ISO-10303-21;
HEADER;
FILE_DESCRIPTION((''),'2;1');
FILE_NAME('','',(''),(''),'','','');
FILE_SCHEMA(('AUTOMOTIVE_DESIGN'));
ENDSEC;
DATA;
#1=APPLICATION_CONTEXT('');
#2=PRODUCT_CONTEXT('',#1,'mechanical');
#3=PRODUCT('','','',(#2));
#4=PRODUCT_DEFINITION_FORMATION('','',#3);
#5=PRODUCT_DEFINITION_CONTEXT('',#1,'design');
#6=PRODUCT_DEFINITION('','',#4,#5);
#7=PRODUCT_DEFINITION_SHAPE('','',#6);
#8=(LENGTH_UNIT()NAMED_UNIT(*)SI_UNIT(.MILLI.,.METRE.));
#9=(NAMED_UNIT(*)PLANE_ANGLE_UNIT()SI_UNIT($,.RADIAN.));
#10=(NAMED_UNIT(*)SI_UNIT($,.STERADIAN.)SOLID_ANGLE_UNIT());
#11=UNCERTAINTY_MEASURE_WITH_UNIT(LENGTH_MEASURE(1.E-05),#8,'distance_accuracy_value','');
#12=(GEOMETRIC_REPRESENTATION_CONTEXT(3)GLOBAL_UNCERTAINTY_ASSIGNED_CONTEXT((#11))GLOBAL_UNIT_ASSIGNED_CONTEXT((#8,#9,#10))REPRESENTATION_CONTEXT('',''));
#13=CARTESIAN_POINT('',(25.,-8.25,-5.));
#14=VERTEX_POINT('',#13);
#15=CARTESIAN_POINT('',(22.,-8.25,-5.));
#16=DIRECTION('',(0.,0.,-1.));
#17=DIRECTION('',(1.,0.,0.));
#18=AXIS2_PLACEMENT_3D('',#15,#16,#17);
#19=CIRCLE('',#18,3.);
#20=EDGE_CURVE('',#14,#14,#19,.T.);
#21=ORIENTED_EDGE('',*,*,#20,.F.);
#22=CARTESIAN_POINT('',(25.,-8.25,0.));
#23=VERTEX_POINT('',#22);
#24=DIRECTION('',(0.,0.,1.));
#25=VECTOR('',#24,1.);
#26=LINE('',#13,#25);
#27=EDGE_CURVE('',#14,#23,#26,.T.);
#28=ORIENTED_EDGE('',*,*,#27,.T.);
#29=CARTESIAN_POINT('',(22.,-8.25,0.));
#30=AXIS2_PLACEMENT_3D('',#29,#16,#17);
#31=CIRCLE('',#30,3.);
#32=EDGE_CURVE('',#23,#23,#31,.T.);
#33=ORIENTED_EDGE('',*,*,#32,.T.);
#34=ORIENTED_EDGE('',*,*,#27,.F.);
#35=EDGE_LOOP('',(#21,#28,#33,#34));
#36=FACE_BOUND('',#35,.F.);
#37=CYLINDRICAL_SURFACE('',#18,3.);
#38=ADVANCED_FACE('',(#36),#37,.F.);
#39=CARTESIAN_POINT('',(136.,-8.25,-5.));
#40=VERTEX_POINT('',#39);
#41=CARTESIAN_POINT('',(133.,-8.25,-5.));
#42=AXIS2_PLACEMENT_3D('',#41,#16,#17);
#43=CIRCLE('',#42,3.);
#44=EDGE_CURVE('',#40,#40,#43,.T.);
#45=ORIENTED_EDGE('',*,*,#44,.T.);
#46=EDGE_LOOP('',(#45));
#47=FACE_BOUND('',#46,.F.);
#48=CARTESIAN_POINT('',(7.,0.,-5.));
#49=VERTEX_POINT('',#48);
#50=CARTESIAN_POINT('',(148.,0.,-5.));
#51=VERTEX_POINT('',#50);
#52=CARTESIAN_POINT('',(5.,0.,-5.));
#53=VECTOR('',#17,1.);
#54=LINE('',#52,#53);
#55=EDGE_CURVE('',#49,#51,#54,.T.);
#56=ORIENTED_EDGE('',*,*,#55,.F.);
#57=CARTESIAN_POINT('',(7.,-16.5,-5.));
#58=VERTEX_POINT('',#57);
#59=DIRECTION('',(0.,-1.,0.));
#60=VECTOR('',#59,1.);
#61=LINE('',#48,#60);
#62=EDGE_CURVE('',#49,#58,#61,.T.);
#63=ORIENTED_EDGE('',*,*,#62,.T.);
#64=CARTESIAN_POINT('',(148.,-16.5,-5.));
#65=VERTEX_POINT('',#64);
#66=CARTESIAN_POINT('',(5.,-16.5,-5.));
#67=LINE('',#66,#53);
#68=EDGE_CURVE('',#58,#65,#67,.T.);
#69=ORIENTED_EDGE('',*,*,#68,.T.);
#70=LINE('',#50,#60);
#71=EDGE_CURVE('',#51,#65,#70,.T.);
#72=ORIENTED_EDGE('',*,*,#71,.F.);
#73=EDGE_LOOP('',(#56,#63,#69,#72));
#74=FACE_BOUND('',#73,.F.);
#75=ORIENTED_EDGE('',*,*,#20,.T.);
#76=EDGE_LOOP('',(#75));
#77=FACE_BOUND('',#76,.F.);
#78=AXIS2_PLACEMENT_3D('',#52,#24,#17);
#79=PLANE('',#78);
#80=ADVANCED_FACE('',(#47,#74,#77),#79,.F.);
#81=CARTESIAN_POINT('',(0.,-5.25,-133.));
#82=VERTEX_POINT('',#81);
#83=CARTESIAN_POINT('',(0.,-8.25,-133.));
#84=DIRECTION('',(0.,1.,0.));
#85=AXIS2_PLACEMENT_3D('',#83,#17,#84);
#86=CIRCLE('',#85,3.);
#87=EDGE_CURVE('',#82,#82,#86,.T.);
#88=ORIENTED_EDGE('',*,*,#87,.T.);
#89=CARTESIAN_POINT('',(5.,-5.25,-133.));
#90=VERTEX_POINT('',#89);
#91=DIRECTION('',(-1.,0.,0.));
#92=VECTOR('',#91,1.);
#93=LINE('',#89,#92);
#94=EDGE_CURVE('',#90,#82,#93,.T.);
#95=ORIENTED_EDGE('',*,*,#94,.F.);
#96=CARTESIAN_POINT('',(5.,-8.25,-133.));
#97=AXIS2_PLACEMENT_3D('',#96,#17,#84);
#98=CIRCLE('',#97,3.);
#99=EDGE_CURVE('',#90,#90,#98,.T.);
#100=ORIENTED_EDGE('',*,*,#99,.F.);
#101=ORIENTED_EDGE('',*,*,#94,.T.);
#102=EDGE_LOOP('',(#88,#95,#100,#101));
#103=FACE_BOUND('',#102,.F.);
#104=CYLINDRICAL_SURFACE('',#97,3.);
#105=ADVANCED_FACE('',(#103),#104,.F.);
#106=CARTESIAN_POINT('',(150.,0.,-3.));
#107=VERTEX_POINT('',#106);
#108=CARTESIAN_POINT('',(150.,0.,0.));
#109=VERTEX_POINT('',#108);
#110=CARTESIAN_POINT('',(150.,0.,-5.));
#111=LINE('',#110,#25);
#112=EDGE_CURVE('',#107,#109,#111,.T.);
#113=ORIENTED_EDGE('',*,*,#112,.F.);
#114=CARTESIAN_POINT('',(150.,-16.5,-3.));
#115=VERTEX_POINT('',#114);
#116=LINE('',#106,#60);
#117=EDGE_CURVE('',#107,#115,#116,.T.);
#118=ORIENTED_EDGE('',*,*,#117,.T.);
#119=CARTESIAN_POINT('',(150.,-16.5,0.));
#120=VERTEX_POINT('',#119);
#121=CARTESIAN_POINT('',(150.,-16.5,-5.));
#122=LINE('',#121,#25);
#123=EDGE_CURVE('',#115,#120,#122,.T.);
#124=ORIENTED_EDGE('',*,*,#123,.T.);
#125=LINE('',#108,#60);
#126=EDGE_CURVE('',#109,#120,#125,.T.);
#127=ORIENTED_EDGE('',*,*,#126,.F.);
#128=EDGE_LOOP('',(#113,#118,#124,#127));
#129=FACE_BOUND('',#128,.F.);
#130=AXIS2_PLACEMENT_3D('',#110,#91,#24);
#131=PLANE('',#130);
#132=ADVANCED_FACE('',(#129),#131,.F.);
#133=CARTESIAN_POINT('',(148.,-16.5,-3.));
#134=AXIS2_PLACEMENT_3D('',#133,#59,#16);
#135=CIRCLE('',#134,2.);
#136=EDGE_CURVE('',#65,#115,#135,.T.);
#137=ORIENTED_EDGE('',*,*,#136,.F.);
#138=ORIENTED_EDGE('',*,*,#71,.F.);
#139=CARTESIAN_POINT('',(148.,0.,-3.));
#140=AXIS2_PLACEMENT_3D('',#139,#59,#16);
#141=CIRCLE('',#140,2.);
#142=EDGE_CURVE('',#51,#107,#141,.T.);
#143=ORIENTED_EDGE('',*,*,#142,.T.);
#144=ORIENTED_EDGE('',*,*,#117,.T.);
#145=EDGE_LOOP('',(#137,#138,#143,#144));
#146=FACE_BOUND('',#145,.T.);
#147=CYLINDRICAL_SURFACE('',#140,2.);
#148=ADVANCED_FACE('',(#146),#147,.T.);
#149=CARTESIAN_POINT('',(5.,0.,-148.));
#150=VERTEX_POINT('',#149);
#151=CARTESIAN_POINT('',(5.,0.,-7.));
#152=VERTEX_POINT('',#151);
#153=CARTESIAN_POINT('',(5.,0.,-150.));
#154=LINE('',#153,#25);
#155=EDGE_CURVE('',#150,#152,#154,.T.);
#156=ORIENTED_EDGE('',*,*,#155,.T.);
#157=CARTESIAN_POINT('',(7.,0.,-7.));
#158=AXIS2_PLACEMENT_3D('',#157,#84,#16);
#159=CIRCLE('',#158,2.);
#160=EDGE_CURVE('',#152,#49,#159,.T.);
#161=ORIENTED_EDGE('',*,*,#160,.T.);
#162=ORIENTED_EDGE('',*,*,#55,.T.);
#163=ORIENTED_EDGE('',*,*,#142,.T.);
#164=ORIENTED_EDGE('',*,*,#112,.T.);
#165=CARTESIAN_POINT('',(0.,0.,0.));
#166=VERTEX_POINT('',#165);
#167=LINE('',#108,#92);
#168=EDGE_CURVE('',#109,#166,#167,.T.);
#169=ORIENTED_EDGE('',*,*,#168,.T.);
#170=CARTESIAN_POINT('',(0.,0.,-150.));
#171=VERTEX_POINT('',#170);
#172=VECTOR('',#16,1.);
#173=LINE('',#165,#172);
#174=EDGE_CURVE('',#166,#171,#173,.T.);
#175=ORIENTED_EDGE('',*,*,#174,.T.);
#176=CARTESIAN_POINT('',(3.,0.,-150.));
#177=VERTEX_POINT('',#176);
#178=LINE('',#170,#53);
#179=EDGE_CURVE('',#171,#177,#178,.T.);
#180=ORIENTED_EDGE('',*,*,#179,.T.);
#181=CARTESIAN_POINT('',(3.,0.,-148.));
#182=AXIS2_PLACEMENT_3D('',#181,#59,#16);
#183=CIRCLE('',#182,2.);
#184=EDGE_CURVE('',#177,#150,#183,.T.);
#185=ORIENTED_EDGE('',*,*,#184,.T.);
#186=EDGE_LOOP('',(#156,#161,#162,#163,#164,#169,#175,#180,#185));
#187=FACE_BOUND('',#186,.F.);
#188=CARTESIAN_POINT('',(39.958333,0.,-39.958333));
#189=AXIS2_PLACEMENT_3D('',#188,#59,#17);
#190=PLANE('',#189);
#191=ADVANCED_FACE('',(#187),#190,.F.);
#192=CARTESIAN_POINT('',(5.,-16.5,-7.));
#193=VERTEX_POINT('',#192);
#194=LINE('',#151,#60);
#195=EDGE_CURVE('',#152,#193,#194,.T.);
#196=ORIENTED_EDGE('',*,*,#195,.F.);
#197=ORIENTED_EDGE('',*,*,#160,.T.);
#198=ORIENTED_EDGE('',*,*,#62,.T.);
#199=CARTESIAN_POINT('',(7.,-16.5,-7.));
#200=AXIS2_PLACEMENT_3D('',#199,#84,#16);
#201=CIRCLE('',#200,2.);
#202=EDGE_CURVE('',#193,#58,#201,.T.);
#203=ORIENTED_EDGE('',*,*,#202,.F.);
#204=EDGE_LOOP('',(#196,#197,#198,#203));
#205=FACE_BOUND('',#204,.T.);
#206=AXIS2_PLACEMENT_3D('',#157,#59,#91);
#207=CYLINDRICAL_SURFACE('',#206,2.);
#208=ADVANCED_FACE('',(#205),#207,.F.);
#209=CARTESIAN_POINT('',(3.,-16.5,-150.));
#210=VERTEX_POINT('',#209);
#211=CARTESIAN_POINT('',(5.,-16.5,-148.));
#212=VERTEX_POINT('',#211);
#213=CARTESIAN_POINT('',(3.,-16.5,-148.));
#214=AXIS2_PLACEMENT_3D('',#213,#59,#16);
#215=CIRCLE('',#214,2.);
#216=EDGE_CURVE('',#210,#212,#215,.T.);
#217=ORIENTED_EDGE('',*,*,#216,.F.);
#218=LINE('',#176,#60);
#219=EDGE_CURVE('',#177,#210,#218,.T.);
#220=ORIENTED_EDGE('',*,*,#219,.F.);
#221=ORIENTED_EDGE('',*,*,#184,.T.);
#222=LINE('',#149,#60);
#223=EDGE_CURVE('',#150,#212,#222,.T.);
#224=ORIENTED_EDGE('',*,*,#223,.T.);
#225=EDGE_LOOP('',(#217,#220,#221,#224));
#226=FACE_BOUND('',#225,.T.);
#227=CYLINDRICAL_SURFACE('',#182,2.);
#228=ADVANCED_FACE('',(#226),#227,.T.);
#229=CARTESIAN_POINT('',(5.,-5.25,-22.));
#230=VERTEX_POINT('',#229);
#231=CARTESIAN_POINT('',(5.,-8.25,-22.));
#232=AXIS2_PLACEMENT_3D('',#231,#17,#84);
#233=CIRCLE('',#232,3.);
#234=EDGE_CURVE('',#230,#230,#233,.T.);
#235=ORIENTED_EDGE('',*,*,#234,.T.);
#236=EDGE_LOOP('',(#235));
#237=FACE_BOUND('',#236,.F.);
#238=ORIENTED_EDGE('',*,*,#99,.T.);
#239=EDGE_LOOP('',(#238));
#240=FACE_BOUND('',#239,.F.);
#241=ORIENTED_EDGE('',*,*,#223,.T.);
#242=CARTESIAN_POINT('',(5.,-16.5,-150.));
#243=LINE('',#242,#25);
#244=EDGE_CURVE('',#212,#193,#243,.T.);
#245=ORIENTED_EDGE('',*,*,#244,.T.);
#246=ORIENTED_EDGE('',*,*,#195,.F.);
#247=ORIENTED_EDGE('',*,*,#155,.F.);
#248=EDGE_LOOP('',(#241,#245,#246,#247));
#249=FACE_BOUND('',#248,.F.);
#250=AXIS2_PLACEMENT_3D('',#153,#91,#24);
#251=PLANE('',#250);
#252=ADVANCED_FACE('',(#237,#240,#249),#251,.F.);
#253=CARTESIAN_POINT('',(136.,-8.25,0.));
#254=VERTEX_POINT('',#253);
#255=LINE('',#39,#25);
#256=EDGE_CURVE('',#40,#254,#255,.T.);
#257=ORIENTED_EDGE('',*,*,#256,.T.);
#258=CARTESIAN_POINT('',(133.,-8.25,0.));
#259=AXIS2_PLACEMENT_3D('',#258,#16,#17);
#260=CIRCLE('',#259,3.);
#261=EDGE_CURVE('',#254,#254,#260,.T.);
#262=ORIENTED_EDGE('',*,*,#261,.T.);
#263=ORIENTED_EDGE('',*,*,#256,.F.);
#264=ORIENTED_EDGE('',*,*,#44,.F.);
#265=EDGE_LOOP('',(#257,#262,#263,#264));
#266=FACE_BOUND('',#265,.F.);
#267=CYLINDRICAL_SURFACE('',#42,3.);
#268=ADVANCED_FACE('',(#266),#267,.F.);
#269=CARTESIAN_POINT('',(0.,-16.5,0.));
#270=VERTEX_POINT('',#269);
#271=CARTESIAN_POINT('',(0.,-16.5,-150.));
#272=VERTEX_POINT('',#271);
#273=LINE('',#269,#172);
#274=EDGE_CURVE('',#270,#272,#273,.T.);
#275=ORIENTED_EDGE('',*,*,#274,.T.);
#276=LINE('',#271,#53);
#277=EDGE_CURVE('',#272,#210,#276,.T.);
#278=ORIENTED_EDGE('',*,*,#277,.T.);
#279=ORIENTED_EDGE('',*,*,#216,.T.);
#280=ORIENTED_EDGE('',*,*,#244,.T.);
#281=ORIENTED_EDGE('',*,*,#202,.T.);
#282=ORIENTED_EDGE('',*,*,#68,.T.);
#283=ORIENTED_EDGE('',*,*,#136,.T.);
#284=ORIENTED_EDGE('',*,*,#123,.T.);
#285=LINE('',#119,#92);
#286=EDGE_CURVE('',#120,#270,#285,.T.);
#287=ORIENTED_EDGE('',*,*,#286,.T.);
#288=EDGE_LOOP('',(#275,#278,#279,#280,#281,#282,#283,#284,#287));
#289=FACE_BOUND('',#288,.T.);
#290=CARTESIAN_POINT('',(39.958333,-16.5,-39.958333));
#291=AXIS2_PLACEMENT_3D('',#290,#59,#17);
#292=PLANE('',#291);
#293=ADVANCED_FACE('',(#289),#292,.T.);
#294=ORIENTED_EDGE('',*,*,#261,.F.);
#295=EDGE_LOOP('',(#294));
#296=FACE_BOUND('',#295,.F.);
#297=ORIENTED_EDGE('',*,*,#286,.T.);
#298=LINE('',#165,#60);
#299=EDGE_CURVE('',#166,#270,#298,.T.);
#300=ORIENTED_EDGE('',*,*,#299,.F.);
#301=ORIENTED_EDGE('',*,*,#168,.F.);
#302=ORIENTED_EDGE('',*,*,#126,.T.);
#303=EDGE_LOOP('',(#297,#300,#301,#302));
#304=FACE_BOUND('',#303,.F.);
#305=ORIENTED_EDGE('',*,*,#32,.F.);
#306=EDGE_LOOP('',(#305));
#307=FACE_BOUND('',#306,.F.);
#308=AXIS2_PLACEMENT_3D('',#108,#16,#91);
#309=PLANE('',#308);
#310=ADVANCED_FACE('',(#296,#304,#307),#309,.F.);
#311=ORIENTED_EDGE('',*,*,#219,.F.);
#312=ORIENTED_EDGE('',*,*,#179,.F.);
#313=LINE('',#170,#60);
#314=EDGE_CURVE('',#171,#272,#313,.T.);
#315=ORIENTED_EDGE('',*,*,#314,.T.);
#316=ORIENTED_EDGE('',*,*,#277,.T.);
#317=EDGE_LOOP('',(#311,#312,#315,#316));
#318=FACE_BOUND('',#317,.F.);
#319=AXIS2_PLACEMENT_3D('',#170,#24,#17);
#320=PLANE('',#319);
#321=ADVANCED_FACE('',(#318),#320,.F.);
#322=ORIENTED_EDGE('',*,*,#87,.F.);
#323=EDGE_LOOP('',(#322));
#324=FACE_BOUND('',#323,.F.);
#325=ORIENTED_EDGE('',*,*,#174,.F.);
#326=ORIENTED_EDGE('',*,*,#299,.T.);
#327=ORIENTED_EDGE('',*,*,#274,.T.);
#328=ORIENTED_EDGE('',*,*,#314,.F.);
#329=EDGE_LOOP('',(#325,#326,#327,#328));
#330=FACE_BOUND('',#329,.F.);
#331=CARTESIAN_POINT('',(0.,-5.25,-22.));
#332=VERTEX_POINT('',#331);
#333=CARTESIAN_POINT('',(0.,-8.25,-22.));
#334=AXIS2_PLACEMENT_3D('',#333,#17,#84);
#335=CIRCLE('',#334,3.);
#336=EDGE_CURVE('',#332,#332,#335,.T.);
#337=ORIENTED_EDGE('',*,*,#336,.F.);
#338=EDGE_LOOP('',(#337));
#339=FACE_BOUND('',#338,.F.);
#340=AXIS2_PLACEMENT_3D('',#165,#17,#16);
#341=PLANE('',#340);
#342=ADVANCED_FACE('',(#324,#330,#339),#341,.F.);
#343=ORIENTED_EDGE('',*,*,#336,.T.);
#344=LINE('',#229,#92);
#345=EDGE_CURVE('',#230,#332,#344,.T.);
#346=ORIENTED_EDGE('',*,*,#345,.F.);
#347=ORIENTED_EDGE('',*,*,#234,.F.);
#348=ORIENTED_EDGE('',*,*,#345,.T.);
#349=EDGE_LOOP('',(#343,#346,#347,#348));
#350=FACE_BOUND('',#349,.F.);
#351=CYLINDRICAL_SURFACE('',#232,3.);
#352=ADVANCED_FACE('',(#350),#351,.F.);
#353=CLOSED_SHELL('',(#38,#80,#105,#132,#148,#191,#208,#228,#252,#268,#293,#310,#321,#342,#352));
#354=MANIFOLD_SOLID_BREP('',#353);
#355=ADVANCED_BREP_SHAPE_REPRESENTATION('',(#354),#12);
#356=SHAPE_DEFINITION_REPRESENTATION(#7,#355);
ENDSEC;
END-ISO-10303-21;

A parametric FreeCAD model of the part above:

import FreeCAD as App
import Part
import Sketcher


def edges_at(feature, points):
    """Names of the edges that pass closest to the given points."""
    edges = feature.Shape.Edges
    near = lambda p: min(range(len(edges)), key=lambda i: edges[i].distToShape(Part.Vertex(*p))[0])
    return sorted({f"Edge{near(p) + 1}" for p in points})


def add_polygon(sketch, points):
    """Adds a closed chain of lines whose ends are joined by coincident constraints."""
    first, n = sketch.GeometryCount, len(points)
    for a, b in zip(points, points[1:] + points[:1]):
        sketch.addGeometry(Part.LineSegment(App.Vector(*a, 0), App.Vector(*b, 0)), False)
    for i in range(n):
        sketch.addConstraint(Sketcher.Constraint("Coincident", first + i, 2, first + (i + 1) % n, 1))

doc = App.newDocument("Part")
body = doc.addObject("PartDesign::Body", "Body")

# Sketch on XZ plane
sketch1 = body.newObject("Sketcher::SketchObject", "Sketch")
sketch1.AttachmentSupport = (doc.getObject("XZ_Plane"), [""])
sketch1.MapMode = "FlatFace"
add_polygon(sketch1, [(0, 0), (0, -150), (5, -150), (5, -5), (150, -5), (150, 0)])  # lines 0-5
sketch1.addConstraint([
    Sketcher.Constraint("Vertical", 0),
    Sketcher.Constraint("Horizontal", 1),
    Sketcher.Constraint("Vertical", 2),
    Sketcher.Constraint("Horizontal", 3),
    Sketcher.Constraint("Vertical", 4),
    Sketcher.Constraint("Horizontal", 5),
    Sketcher.Constraint("Coincident", 5, 2, -1, 1),
    Sketcher.Constraint("Equal", 5, 0),
    Sketcher.Constraint("Equal", 3, 2),
    Sketcher.Constraint("DistanceX", 1, 1, 1, 2, 5.0),
    Sketcher.Constraint("DistanceX", 3, 1, 3, 2, 145.0),
])
pad1 = body.newObject("PartDesign::Pad", "Pad")
pad1.Profile = sketch1
pad1.Length = 16.5
doc.recompute()

fillet = body.newObject("PartDesign::Fillet", "Fillet")
fillet.Base = (pad1, edges_at(pad1, [(5, -8.25, -5), (150, -8.25, -5), (5, -8.25, -150)]))
fillet.Radius = 2

# Sketch on XY plane
sketch2 = body.newObject("Sketcher::SketchObject", "Sketch001")
sketch2.AttachmentSupport = (doc.getObject("XY_Plane"), [""])
sketch2.MapMode = "FlatFace"
sketch2.AttachmentOffset = App.Placement(App.Vector(0, 0, -5), App.Rotation())
sketch2.addGeometry([
    Part.Circle(App.Vector(133, -8.25, 0), App.Vector(0, 0, 1), 3),
    Part.Circle(App.Vector(22, -8.25, 0), App.Vector(0, 0, 1), 3),
], False)
sketch2.addConstraint([
    Sketcher.Constraint("Equal", 0, 1),
    Sketcher.Constraint("Horizontal", 0, 3, 1, 3),
    Sketcher.Constraint("Diameter", 0, 6.0),
    Sketcher.Constraint("DistanceX", -1, 1, 0, 3, 133.0),
    Sketcher.Constraint("DistanceX", -1, 1, 1, 3, 22.0),
    Sketcher.Constraint("DistanceY", 0, 3, -1, 1, 8.25),
])
pocket1 = body.newObject("PartDesign::Pocket", "Pocket")
pocket1.Profile = sketch2
pocket1.Length = 25
pocket1.Reversed = True

# Sketch on YZ plane
sketch3 = body.newObject("Sketcher::SketchObject", "Sketch002")
sketch3.AttachmentSupport = (doc.getObject("YZ_Plane"), [""])
sketch3.MapMode = "FlatFace"
sketch3.AttachmentOffset = App.Placement(App.Vector(0, 0, 5), App.Rotation())
sketch3.addGeometry([
    Part.Circle(App.Vector(-8.25, -133, 0), App.Vector(0, 0, 1), 3),
    Part.Circle(App.Vector(-8.25, -22, 0), App.Vector(0, 0, 1), 3),
], False)
sketch3.addConstraint([
    Sketcher.Constraint("Equal", 0, 1),
    Sketcher.Constraint("Vertical", 0, 3, 1, 3),
    Sketcher.Constraint("Diameter", 0, 6.0),
    Sketcher.Constraint("DistanceY", 0, 3, -1, 1, 133.0),
    Sketcher.Constraint("DistanceY", 1, 3, -1, 1, 22.0),
    Sketcher.Constraint("DistanceX", 0, 3, -1, 1, 8.25),
])
pocket2 = body.newObject("PartDesign::Pocket", "Pocket001")
pocket2.Profile = sketch3
pocket2.Length = 25

doc.recompute()
